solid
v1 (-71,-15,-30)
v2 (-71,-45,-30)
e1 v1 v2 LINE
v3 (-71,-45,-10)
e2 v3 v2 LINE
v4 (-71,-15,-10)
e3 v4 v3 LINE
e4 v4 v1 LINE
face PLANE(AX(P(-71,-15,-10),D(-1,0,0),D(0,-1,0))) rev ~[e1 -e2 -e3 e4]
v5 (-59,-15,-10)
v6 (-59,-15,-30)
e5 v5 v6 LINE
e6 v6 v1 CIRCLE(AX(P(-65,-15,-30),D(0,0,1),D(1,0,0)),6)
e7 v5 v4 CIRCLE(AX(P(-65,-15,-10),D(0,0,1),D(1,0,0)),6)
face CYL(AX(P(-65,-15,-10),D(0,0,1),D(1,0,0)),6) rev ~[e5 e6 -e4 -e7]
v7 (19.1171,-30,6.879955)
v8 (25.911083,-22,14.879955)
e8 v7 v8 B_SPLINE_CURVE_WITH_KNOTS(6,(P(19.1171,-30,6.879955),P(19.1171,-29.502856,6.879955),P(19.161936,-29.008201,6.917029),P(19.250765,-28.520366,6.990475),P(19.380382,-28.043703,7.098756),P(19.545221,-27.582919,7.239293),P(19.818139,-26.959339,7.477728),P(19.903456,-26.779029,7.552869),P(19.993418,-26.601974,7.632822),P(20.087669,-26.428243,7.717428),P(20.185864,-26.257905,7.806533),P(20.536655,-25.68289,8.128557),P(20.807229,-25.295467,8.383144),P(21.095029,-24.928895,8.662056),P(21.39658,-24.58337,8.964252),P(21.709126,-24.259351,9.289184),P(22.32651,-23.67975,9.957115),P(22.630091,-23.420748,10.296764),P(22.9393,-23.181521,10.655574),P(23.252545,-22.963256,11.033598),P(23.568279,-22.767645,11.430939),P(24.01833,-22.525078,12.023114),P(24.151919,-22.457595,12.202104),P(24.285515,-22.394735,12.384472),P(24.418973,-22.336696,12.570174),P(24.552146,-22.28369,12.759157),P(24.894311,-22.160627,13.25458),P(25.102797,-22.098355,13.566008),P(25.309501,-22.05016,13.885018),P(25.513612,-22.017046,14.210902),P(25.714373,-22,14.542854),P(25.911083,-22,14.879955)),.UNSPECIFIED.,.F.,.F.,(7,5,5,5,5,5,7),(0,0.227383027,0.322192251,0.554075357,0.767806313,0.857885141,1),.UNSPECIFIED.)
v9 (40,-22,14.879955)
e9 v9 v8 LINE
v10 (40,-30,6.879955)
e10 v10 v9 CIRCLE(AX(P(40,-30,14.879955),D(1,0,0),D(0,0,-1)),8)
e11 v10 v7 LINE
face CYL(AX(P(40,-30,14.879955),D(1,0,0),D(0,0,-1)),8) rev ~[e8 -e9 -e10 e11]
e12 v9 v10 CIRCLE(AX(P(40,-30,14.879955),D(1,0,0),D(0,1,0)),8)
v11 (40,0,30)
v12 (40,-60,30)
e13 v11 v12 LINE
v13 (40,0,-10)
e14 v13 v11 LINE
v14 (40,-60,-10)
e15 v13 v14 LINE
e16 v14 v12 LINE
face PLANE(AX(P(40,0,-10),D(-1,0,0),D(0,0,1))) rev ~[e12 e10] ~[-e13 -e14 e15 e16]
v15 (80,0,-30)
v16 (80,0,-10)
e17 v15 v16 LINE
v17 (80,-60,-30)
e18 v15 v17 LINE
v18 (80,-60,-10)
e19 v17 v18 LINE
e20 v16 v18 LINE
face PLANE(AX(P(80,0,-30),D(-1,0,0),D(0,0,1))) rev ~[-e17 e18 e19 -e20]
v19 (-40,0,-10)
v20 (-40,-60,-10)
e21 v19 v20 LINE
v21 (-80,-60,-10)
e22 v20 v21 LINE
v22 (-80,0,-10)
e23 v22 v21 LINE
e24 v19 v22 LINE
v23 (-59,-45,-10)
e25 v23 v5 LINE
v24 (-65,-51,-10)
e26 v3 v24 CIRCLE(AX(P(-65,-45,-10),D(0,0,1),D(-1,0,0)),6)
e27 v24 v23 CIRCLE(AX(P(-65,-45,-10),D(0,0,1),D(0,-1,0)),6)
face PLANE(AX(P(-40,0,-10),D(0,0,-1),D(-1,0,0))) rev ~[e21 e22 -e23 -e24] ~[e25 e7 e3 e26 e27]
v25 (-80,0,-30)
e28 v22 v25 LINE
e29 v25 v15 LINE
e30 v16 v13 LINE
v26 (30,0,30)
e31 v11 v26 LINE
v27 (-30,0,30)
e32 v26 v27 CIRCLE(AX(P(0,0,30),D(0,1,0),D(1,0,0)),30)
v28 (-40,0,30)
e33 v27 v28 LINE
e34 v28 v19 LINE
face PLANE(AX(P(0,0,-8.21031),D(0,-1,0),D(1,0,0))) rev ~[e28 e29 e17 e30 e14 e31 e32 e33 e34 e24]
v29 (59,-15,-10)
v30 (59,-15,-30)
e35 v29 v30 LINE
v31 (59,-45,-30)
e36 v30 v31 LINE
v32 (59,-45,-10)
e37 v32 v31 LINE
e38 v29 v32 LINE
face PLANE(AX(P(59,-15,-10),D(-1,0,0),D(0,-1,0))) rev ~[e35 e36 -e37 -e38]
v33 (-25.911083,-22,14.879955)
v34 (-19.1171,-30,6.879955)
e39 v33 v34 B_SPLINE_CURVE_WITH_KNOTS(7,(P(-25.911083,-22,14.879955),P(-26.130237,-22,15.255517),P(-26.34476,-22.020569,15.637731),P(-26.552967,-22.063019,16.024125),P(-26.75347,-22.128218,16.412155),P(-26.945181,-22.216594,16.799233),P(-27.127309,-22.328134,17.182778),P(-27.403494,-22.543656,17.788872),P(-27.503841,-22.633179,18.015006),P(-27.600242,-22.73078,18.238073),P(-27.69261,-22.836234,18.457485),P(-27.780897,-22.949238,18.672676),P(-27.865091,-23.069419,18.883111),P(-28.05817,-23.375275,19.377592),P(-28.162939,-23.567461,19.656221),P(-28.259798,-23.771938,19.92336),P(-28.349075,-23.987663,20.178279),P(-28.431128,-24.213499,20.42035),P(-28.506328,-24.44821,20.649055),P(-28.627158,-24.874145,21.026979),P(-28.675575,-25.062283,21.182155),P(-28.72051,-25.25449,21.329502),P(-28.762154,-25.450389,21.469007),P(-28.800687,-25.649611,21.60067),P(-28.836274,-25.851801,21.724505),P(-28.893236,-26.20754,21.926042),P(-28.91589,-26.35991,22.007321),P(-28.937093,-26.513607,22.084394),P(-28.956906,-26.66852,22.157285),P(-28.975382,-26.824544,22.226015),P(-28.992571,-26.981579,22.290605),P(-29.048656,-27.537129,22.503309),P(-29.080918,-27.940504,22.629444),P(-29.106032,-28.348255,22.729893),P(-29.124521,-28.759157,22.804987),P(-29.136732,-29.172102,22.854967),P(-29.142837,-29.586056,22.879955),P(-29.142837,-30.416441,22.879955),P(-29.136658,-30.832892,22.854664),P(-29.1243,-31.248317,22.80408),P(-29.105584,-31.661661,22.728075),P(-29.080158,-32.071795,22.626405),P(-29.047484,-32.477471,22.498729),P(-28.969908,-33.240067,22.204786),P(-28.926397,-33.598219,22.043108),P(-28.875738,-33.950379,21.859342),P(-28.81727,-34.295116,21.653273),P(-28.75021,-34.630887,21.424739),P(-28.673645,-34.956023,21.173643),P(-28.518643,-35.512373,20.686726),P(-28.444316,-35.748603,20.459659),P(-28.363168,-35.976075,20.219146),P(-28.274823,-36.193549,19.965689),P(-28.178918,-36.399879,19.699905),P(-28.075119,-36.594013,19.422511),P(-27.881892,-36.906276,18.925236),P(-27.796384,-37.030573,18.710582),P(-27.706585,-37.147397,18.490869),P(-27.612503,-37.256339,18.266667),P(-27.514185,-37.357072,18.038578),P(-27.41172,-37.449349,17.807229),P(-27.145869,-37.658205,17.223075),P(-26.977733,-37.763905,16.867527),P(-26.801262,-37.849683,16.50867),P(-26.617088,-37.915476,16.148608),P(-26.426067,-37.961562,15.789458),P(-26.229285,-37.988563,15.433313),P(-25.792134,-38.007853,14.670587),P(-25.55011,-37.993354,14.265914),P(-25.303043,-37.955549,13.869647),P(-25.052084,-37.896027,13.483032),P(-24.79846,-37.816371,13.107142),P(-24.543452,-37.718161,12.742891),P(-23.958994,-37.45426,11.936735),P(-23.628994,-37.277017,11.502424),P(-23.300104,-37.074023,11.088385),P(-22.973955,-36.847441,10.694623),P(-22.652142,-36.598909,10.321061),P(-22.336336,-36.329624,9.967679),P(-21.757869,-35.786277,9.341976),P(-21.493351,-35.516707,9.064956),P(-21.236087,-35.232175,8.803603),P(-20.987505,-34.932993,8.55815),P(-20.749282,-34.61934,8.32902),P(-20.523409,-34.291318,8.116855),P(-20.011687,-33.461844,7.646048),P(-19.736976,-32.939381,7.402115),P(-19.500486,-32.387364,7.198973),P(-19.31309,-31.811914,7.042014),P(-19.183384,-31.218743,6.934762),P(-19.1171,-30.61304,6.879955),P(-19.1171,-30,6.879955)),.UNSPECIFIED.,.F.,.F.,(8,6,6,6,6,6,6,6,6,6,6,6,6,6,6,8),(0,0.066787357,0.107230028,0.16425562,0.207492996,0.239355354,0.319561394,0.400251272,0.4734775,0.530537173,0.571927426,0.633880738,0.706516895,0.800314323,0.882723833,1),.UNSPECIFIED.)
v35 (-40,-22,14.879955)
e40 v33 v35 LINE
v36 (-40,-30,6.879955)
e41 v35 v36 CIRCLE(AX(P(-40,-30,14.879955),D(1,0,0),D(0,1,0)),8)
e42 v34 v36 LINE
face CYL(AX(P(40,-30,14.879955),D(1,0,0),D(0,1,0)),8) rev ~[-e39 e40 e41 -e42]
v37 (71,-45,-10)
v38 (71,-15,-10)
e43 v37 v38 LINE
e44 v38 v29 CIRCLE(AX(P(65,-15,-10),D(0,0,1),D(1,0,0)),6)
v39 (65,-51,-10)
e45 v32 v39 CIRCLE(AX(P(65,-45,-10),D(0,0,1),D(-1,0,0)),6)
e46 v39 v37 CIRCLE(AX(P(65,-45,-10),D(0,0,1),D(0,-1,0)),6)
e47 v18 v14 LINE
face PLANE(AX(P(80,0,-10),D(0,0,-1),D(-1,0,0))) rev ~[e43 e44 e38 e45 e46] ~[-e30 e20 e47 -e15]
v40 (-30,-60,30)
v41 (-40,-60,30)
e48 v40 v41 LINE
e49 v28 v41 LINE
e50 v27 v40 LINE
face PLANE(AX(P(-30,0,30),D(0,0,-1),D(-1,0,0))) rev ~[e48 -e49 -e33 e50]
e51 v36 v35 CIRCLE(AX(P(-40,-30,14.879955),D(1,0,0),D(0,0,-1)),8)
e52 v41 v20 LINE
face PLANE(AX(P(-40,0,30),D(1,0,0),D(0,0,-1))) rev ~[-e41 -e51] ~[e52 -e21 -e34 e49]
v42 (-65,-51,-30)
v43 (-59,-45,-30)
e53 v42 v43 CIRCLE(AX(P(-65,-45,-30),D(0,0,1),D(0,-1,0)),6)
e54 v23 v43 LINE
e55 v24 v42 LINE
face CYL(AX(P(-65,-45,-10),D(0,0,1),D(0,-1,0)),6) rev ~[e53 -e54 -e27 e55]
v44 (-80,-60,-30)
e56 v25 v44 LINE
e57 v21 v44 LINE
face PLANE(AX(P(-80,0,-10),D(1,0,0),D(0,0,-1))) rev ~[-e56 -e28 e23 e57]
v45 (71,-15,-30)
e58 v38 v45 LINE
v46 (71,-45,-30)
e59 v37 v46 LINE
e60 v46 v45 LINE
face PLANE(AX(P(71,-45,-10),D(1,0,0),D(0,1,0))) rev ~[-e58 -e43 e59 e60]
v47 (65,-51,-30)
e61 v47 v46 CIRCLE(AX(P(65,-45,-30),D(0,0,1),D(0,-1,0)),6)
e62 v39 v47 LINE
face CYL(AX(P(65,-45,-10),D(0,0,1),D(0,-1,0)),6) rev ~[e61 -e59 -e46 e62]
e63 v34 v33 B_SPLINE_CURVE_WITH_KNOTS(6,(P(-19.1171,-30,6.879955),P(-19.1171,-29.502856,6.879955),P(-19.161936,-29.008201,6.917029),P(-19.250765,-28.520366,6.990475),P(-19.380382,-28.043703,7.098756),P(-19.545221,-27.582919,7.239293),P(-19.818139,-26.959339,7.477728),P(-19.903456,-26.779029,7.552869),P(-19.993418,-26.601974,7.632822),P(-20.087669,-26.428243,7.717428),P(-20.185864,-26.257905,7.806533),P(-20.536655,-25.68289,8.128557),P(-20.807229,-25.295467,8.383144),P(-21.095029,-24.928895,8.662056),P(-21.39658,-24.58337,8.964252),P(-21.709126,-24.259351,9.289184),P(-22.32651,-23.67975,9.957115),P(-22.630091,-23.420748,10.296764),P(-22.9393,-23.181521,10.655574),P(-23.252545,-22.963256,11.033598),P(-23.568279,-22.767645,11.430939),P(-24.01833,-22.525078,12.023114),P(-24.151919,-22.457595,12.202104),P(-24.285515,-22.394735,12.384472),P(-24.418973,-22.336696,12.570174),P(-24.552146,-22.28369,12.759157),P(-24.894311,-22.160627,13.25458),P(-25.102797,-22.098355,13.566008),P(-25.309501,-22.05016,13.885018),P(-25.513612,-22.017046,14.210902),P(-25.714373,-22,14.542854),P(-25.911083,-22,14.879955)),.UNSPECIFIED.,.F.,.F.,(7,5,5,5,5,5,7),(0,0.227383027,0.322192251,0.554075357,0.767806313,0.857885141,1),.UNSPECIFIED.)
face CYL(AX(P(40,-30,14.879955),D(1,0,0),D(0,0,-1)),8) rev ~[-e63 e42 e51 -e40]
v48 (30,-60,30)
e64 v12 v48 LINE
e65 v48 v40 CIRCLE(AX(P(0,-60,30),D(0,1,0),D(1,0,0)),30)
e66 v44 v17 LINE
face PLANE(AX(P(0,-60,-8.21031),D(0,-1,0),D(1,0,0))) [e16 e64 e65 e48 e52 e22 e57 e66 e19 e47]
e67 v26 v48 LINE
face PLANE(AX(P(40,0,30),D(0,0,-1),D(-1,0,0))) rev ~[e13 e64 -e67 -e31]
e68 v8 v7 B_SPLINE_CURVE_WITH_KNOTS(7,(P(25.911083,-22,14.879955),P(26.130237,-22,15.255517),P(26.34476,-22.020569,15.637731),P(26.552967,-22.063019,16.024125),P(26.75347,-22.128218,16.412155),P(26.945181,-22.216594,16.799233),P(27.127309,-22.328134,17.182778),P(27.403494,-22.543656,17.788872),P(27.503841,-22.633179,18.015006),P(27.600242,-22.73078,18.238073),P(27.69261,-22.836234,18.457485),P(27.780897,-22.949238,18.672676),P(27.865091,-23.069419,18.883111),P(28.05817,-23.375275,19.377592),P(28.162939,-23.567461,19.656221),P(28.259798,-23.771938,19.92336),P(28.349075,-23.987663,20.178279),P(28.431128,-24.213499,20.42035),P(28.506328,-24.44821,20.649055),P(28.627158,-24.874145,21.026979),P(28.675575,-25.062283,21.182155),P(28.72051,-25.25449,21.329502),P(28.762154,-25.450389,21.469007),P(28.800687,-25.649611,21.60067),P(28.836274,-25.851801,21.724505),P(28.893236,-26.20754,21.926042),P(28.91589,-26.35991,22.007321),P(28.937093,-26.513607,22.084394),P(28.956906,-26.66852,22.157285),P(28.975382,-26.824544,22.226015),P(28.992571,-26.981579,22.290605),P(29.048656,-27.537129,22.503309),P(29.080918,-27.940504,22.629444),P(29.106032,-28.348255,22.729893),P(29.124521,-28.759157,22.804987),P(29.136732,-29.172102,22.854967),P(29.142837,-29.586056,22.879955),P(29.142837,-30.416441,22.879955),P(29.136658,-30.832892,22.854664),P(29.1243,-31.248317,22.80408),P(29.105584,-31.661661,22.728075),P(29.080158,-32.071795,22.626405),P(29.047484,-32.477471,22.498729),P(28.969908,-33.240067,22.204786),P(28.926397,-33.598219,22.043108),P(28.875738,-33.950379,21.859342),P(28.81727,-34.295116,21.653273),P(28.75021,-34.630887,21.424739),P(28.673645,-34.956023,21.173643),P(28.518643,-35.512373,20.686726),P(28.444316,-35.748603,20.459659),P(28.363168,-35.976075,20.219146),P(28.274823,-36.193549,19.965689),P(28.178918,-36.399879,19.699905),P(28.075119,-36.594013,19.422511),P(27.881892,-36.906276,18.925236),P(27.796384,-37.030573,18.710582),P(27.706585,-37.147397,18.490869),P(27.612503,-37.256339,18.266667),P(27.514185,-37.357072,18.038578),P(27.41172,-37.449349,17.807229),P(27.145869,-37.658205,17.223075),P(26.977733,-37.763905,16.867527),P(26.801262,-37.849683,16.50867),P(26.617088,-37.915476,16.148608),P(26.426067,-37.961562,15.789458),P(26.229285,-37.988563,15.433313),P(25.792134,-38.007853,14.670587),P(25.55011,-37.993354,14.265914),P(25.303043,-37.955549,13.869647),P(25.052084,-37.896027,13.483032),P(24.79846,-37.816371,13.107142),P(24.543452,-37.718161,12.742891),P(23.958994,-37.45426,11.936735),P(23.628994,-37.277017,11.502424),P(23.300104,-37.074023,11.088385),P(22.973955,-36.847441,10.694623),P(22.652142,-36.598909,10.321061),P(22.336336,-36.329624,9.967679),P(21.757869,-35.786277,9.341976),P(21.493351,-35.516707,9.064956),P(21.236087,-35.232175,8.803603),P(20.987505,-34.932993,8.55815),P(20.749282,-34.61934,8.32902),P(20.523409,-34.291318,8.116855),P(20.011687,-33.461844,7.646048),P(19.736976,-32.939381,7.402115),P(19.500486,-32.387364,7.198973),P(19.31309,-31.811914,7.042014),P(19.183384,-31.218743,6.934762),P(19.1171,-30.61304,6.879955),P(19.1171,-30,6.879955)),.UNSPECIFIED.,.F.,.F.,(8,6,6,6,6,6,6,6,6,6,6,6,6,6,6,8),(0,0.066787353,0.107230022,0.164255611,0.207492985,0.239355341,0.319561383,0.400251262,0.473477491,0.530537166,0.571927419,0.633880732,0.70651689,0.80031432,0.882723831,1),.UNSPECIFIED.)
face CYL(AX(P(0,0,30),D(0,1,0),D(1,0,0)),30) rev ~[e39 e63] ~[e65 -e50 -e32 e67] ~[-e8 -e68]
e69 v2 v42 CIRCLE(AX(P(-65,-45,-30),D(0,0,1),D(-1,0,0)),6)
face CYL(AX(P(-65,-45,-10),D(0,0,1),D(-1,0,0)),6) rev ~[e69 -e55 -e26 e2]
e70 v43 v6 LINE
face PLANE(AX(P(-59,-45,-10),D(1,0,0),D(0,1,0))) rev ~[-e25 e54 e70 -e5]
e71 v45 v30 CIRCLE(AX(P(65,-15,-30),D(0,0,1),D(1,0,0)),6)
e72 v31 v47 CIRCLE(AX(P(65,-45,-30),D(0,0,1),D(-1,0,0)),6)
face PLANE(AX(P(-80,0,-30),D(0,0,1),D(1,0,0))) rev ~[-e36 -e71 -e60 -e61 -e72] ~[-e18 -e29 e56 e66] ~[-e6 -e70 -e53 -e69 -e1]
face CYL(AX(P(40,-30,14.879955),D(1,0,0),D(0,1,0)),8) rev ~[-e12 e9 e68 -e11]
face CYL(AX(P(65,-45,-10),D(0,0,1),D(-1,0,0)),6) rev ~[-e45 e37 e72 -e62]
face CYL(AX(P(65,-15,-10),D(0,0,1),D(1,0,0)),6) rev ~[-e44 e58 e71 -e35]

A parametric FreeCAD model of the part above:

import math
import FreeCAD as App
import Part
import Sketcher
from FreeCAD import Vector
Q = App.Units.Quantity

doc = App.newDocument("Part")
body = doc.addObject("PartDesign::Body", "Body")

# Sketch on XZ plane
sketch1 = doc.addObject("Sketcher::SketchObject", "Sketch")
body.addObject(sketch1)
sketch1.AttachmentSupport = (doc.XZ_Plane, [""])
sketch1.MapMode = "FlatFace"
sketch1.addGeometry([
    Part.LineSegment(Vector(-80, -10, 0), Vector(-80, -30, 0)),  # 0
    Part.LineSegment(Vector(-80, -30, 0), Vector(80, -30, 0)),  # 1
    Part.LineSegment(Vector(80, -30, 0), Vector(80, -10, 0)),  # 2
    Part.LineSegment(Vector(80, -10, 0), Vector(40, -10, 0)),  # 3
    Part.LineSegment(Vector(40, -10, 0), Vector(40, 30, 0)),  # 4
    Part.LineSegment(Vector(40, 30, 0), Vector(30, 30, 0)),  # 5
    Part.ArcOfCircle(Part.Circle(Vector(0, 30, 0), Vector(0, 0, 1), 30), math.radians(180), math.radians(360)),  # 6
    Part.LineSegment(Vector(-30, 30, 0), Vector(-40, 30, 0)),  # 7
    Part.LineSegment(Vector(-40, 30, 0), Vector(-40, -10, 0)),  # 8
    Part.LineSegment(Vector(-40, -10, 0), Vector(-80, -10, 0)),  # 9
], False)
sketch1.addConstraint([
    Sketcher.Constraint("Coincident", 0, 2, 1, 1),
    Sketcher.Constraint("Coincident", 1, 2, 2, 1),
    Sketcher.Constraint("Coincident", 2, 2, 3, 1),
    Sketcher.Constraint("Coincident", 3, 2, 4, 1),
    Sketcher.Constraint("Coincident", 4, 2, 5, 1),
    Sketcher.Constraint("Coincident", 5, 2, 6, 2),
    Sketcher.Constraint("Coincident", 6, 1, 7, 1),
    Sketcher.Constraint("Coincident", 7, 2, 8, 1),
    Sketcher.Constraint("Coincident", 8, 2, 9, 1),
    Sketcher.Constraint("Coincident", 9, 2, 0, 1),
    Sketcher.Constraint("Vertical", 0),
    Sketcher.Constraint("Horizontal", 1),
    Sketcher.Constraint("Vertical", 2),
    Sketcher.Constraint("Horizontal", 3),
    Sketcher.Constraint("Vertical", 4),
    Sketcher.Constraint("Horizontal", 5),
    Sketcher.Constraint("Horizontal", 7),
    Sketcher.Constraint("Vertical", 8),
    Sketcher.Constraint("Horizontal", 9),
    Sketcher.Constraint("Symmetric", 5, 2, 6, 1, -2),
    Sketcher.Constraint("Symmetric", 3, 2, 8, 2, -2),
    Sketcher.Constraint("Horizontal", 6, 3, 4, 2),
    Sketcher.Constraint("Equal", 3, 9),
    Sketcher.Constraint("Equal", 9, 4),
    Sketcher.Constraint("Radius", 6, Q("30 mm")),
    Sketcher.Constraint("DistanceX", 1, 1, 1, 2, Q("160 mm")),
    Sketcher.Constraint("DistanceX", 3, 2, 3, 1, Q("40 mm")),
    Sketcher.Constraint("DistanceY", 0, 2, 0, 1, Q("20 mm")),
    Sketcher.Constraint("DistanceY", -1, 1, 6, 3, Q("30 mm")),
])
pad1 = doc.addObject("PartDesign::Pad", "Pad")
body.addObject(pad1)
pad1.Profile = sketch1
pad1.Length = 60

# Sketch on YZ plane
sketch2 = doc.addObject("Sketcher::SketchObject", "Sketch001")
body.addObject(sketch2)
sketch2.AttachmentSupport = (doc.YZ_Plane, [""])
sketch2.MapMode = "FlatFace"
sketch2.AttachmentOffset = App.Placement(Vector(0, 0, 40), App.Rotation())
sketch2.addGeometry([
    Part.ArcOfCircle(Part.Circle(Vector(-30, 15, 0), Vector(0, 0, 1), 8), math.radians(-90), math.radians(0)),
    Part.ArcOfCircle(Part.Circle(Vector(-30, 15, 0), Vector(0, 0, 1), 8), math.radians(0), math.radians(270)),
], False)
sketch2.addConstraint([
    Sketcher.Constraint("Tangent", 0, 1, 1, 2),
    Sketcher.Constraint("Coincident", 1, 1, 0, 2),
    Sketcher.Constraint("Horizontal", 0, 3, 1, 1),
    Sketcher.Constraint("Vertical", 1, 3, 0, 1),
    Sketcher.Constraint("Radius", 0, Q("8 mm")),
    Sketcher.Constraint("DistanceX", 0, 3, -1, 1, Q("30 mm")),
    Sketcher.Constraint("DistanceY", -1, 1, 0, 3, Q("14.879955 mm")),
])
pocket1 = doc.addObject("PartDesign::Pocket", "Pocket")
body.addObject(pocket1)
pocket1.Profile = sketch2
pocket1.Type = "ThroughAll"

# Sketch on XY plane
sketch3 = doc.addObject("Sketcher::SketchObject", "Sketch002")
body.addObject(sketch3)
sketch3.AttachmentSupport = (doc.XY_Plane, [""])
sketch3.MapMode = "FlatFace"
sketch3.AttachmentOffset = App.Placement(Vector(0, 0, -10), App.Rotation())
sketch3.addGeometry([
    Part.ArcOfCircle(Part.Circle(Vector(65, -45, 0), Vector(0, 0, 1), 6), math.radians(180), math.radians(270)),  # 0
    Part.ArcOfCircle(Part.Circle(Vector(65, -45, 0), Vector(0, 0, 1), 6), math.radians(-90), math.radians(0)),  # 1
    Part.LineSegment(Vector(71, -45, 0), Vector(71, -15, 0)),  # 2
    Part.ArcOfCircle(Part.Circle(Vector(65, -15, 0), Vector(0, 0, 1), 6), math.radians(0), math.radians(180)),  # 3
    Part.LineSegment(Vector(59, -15, 0), Vector(59, -45, 0)),  # 4
    Part.ArcOfCircle(Part.Circle(Vector(-65, -45, 0), Vector(0, 0, 1), 6), math.radians(180), math.radians(270)),  # 5
    Part.ArcOfCircle(Part.Circle(Vector(-65, -45, 0), Vector(0, 0, 1), 6), math.radians(-90), math.radians(0)),  # 6
    Part.LineSegment(Vector(-59, -45, 0), Vector(-59, -15, 0)),  # 7
    Part.ArcOfCircle(Part.Circle(Vector(-65, -15, 0), Vector(0, 0, 1), 6), math.radians(0), math.radians(180)),  # 8
    Part.LineSegment(Vector(-71, -15, 0), Vector(-71, -45, 0)),  # 9
], False)
sketch3.addConstraint([
    Sketcher.Constraint("Tangent", 0, 2, 1, 1),
    Sketcher.Constraint("Tangent", 1, 2, 2, 1),
    Sketcher.Constraint("Tangent", 2, 2, 3, 1),
    Sketcher.Constraint("Tangent", 3, 2, 4, 1),
    Sketcher.Constraint("Tangent", 4, 2, 0, 1),
    Sketcher.Constraint("Tangent", 5, 2, 6, 1),
    Sketcher.Constraint("Tangent", 6, 2, 7, 1),
    Sketcher.Constraint("Tangent", 7, 2, 8, 1),
    Sketcher.Constraint("Tangent", 8, 2, 9, 1),
    Sketcher.Constraint("Tangent", 9, 2, 5, 1),
    Sketcher.Constraint("Vertical", 2),
    Sketcher.Constraint("Vertical", 4),
    Sketcher.Constraint("Vertical", 7),
    Sketcher.Constraint("Vertical", 9),
    Sketcher.Constraint("Equal", 0, 1),
    Sketcher.Constraint("Equal", 3, 5),
    Sketcher.Constraint("Equal", 5, 6),
    Sketcher.Constraint("Symmetric", 0, 3, 5, 3, -2),
    Sketcher.Constraint("Horizontal", 3, 3, 8, 3),
    Sketcher.Constraint("Vertical", 3, 3, 0, 2),
    Sketcher.Constraint("Vertical", 8, 3, 5, 2),
    Sketcher.Constraint("Radius", 0, Q("6 mm")),
    Sketcher.Constraint("DistanceY", 2, 1, 2, 2, Q("30 mm")),
    Sketcher.Constraint("DistanceX", -1, 1, 0, 3, Q("65 mm")),
    Sketcher.Constraint("DistanceY", 0, 3, -1, 1, Q("45 mm")),
])
pocket2 = doc.addObject("PartDesign::Pocket", "Pocket001")
body.addObject(pocket2)
pocket2.Profile = sketch3
pocket2.Type = "ThroughAll"

doc.recompute()
